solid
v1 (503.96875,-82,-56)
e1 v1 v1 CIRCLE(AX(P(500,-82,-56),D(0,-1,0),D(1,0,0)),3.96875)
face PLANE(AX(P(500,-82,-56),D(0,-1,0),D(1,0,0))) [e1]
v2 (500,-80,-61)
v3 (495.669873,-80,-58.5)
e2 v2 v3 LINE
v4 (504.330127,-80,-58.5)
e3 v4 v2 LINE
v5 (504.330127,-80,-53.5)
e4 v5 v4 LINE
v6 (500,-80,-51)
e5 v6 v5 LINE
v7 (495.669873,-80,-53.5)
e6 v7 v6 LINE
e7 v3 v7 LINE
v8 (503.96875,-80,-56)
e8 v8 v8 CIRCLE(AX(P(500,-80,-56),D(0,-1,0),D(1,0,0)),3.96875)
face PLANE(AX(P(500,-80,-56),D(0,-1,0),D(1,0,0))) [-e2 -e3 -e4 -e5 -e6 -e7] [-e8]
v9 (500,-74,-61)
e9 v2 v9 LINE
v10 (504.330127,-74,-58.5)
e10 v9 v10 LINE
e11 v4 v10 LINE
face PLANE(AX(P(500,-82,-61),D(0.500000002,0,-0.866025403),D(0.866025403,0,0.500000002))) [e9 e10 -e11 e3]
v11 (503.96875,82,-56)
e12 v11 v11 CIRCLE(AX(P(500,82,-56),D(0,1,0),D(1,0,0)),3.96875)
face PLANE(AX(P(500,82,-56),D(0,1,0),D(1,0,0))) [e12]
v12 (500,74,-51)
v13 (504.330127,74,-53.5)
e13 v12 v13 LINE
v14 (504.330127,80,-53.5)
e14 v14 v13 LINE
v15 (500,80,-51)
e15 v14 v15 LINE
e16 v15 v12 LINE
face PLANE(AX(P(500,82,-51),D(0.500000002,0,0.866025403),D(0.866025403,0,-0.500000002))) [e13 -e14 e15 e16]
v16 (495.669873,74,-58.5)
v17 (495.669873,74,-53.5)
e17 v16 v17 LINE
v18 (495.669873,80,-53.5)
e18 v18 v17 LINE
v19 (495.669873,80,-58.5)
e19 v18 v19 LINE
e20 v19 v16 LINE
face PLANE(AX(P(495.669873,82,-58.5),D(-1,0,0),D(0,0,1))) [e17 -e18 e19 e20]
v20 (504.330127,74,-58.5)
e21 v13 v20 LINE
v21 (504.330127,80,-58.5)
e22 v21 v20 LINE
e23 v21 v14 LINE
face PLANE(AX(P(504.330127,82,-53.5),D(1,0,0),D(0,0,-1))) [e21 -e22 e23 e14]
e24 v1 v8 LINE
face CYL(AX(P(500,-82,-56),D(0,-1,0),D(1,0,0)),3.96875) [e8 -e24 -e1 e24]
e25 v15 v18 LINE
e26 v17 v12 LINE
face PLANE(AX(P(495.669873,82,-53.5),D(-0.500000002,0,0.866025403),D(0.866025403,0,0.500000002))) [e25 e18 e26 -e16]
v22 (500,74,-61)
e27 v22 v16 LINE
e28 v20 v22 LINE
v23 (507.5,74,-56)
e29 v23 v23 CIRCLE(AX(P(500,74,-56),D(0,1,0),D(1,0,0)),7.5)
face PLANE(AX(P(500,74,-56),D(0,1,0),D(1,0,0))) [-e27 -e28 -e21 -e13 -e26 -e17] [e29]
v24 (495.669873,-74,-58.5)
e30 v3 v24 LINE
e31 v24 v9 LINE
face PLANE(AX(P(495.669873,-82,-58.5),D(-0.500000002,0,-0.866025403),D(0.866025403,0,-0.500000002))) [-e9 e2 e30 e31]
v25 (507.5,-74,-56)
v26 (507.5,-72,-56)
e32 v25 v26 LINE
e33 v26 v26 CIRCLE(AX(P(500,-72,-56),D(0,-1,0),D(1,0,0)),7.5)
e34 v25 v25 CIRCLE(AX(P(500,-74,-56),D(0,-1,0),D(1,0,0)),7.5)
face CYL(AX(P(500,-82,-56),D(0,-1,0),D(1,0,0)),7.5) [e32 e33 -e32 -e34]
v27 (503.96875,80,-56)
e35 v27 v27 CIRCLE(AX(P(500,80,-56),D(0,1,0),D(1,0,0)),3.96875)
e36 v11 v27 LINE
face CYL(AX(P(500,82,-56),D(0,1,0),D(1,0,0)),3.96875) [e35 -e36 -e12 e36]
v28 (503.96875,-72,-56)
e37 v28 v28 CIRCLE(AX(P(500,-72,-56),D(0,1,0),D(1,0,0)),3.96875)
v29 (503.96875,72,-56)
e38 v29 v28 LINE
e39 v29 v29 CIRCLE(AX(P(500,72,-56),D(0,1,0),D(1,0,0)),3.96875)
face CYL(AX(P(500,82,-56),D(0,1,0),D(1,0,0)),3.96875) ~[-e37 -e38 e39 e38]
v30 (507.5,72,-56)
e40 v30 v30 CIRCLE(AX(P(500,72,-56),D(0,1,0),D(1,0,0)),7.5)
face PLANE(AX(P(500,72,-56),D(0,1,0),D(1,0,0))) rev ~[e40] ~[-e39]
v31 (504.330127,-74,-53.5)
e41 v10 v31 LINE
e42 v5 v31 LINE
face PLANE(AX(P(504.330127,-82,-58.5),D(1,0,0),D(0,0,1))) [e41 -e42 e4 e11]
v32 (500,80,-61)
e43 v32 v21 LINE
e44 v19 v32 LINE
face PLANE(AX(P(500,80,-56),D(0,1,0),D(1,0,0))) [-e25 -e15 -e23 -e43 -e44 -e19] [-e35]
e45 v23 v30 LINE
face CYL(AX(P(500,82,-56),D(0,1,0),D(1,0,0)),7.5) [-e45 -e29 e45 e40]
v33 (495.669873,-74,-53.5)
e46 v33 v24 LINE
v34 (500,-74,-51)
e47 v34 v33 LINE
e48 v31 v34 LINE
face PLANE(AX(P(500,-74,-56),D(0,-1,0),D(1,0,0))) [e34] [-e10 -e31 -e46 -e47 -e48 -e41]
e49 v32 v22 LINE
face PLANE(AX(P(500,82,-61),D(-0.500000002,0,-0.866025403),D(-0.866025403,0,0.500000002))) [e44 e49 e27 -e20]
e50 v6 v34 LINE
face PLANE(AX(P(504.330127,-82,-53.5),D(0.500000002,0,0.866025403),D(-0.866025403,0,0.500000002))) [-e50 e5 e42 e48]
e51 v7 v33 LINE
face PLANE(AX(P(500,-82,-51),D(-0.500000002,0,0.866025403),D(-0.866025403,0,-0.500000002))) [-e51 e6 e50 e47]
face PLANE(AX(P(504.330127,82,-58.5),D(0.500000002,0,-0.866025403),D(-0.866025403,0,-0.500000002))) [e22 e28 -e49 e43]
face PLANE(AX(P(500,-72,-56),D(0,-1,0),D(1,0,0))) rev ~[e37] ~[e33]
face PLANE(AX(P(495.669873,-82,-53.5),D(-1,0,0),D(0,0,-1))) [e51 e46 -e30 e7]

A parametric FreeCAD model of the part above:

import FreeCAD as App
import Part
import Sketcher
Q = App.Units.Quantity

doc = App.newDocument("Part")
body = doc.addObject("PartDesign::Body", "Body")

# Sketch on XZ plane
sketch1 = body.newObject("Sketcher::SketchObject", "Sketch")
sketch1.AttachmentSupport = (doc.getObject("XZ_Plane"), [""])
sketch1.MapMode = "FlatFace"
sketch1.AttachmentOffset = App.Placement(App.Vector(0, 0, -82), App.Rotation())
sketch1.addGeometry(Part.Circle(App.Vector(500, 56, 0), App.Vector(0, 0, 1), 4), False)
sketch1.addConstraint([
    Sketcher.Constraint("DistanceX", -1, 1, 0, 3, 500.0),
    Sketcher.Constraint("DistanceY", -1, 1, 0, 3, 56.0),
    Sketcher.Constraint("Diameter", 0, 7.9375),
])
pad1 = body.newObject("PartDesign::Pad", "Pad")
pad1.Profile = sketch1
pad1.Length = 164

# Sketch on XZ plane
sketch2 = body.newObject("Sketcher::SketchObject", "Sketch001")
sketch2.AttachmentSupport = (doc.getObject("XZ_Plane"), [""])
sketch2.MapMode = "FlatFace"
sketch2.AttachmentOffset = App.Placement(App.Vector(0, 0, -82), App.Rotation())
sketch2.addGeometry(Part.Circle(App.Vector(500, 56, 0), App.Vector(0, 0, 1), 8), False)
sketch2.addConstraint([
    Sketcher.Constraint("Diameter", 0, 15.0),
    Sketcher.Constraint("DistanceX", -1, 1, 0, 3, 500.0),
    Sketcher.Constraint("DistanceY", -1, 1, 0, 3, 56.0),
])
pad2 = body.newObject("PartDesign::Pad", "Pad001")
pad2.Profile = sketch2
pad2.Length = 10

# Sketch on XZ plane
sketch3 = body.newObject("Sketcher::SketchObject", "Sketch002")
sketch3.AttachmentSupport = (doc.getObject("XZ_Plane"), [""])
sketch3.MapMode = "FlatFace"
sketch3.AttachmentOffset = App.Placement(App.Vector(0, 0, -82), App.Rotation())
sketch3.addGeometry([
    Part.Circle(App.Vector(500, 56, 0), App.Vector(0, 0, 1), 7.5),  # 0
    Part.LineSegment(App.Vector(495.7, 53.5, 0), App.Vector(500, 51, 0)),  # 1
    Part.LineSegment(App.Vector(500, 51, 0), App.Vector(504.3, 53.5, 0)),  # 2
    Part.LineSegment(App.Vector(504.3, 53.5, 0), App.Vector(504.3, 58.5, 0)),  # 3
    Part.LineSegment(App.Vector(504.3, 58.5, 0), App.Vector(500, 61, 0)),  # 4
    Part.LineSegment(App.Vector(500, 61, 0), App.Vector(495.7, 58.5, 0)),  # 5
    Part.LineSegment(App.Vector(495.7, 58.5, 0), App.Vector(495.7, 53.5, 0)),  # 6
], False)
sketch3.addConstraint([
    Sketcher.Constraint("Coincident", 1, 2, 2, 1),
    Sketcher.Constraint("Coincident", 2, 2, 3, 1),
    Sketcher.Constraint("Coincident", 3, 2, 4, 1),
    Sketcher.Constraint("Coincident", 4, 2, 5, 1),
    Sketcher.Constraint("Coincident", 5, 2, 6, 1),
    Sketcher.Constraint("Coincident", 6, 2, 1, 1),
    Sketcher.Constraint("Vertical", 3),
    Sketcher.Constraint("Vertical", 6),
    Sketcher.Constraint("Parallel", 1, 4),
    Sketcher.Constraint("Parallel", 2, 5),
    Sketcher.Constraint("Horizontal", 3, 2, 5, 2),
    Sketcher.Constraint("Horizontal", 2, 2, 6, 2),
    Sketcher.Constraint("Vertical", 0, 3, 1, 2),
    Sketcher.Constraint("Vertical", 1, 2, 4, 2),
    Sketcher.Constraint("Diameter", 0, 15.0),
    Sketcher.Constraint("DistanceY", 3, 1, 3, 2, 5.0),
    Sketcher.Constraint("Angle", 1, Q("-30 deg")),
    Sketcher.Constraint("Distance", 1, 5.0),
    Sketcher.Constraint("DistanceX", -1, 1, 0, 3, 500.0),
    Sketcher.Constraint("DistanceY", -1, 1, 0, 3, 56.0),
    Sketcher.Constraint("DistanceY", -1, 1, 1, 2, 51.0),
])
pocket1 = body.newObject("PartDesign::Pocket", "Pocket")
pocket1.Profile = sketch3
pocket1.Length = 8
pocket1.Reversed = True

# Sketch on XZ plane
sketch4 = body.newObject("Sketcher::SketchObject", "Sketch003")
sketch4.AttachmentSupport = (doc.getObject("XZ_Plane"), [""])
sketch4.MapMode = "FlatFace"
sketch4.AttachmentOffset = App.Placement(App.Vector(0, 0, -82), App.Rotation())
sketch4.addGeometry([
    Part.Circle(App.Vector(500, 56, 0), App.Vector(0, 0, 1), 7.5),
    Part.Circle(App.Vector(500, 56, 0), App.Vector(0, 0, 1), 4),
], False)
sketch4.addConstraint([
    Sketcher.Constraint("Coincident", 1, 3, 0, 3),
    Sketcher.Constraint("Diameter", 0, 15.0),
    Sketcher.Constraint("DistanceX", -1, 1, 0, 3, 500.0),
    Sketcher.Constraint("DistanceY", -1, 1, 0, 3, 56.0),
    Sketcher.Constraint("Diameter", 1, 7.9375),
])
pocket2 = body.newObject("PartDesign::Pocket", "Pocket001")
pocket2.Profile = sketch4
pocket2.Length = 2
pocket2.Reversed = True

# Sketch on XZ plane
sketch5 = body.newObject("Sketcher::SketchObject", "Sketch004")
sketch5.AttachmentSupport = (doc.getObject("XZ_Plane"), [""])
sketch5.MapMode = "FlatFace"
sketch5.AttachmentOffset = App.Placement(App.Vector(0, 0, 82), App.Rotation())
sketch5.addGeometry(Part.Circle(App.Vector(500, 56, 0), App.Vector(0, 0, 1), 8), False)
sketch5.addConstraint([
    Sketcher.Constraint("Diameter", 0, 15.0),
    Sketcher.Constraint("DistanceX", -1, 1, 0, 3, 500.0),
    Sketcher.Constraint("DistanceY", -1, 1, 0, 3, 56.0),
])
pad3 = body.newObject("PartDesign::Pad", "Pad002")
pad3.Profile = sketch5
pad3.Length = 10
pad3.Reversed = True

# Sketch on XZ plane
sketch6 = body.newObject("Sketcher::SketchObject", "Sketch005")
sketch6.AttachmentSupport = (doc.getObject("XZ_Plane"), [""])
sketch6.MapMode = "FlatFace"
sketch6.AttachmentOffset = App.Placement(App.Vector(0, 0, 82), App.Rotation())
sketch6.addGeometry([
    Part.Circle(App.Vector(500, 56, 0), App.Vector(0, 0, 1), 7.5),  # 0
    Part.LineSegment(App.Vector(495.7, 58.5, 0), App.Vector(500, 61, 0)),  # 1
    Part.LineSegment(App.Vector(500, 61, 0), App.Vector(504.3, 58.5, 0)),  # 2
    Part.LineSegment(App.Vector(504.3, 58.5, 0), App.Vector(504.3, 53.5, 0)),  # 3
    Part.LineSegment(App.Vector(504.3, 53.5, 0), App.Vector(500, 51, 0)),  # 4
    Part.LineSegment(App.Vector(500, 51, 0), App.Vector(495.7, 53.5, 0)),  # 5
    Part.LineSegment(App.Vector(495.7, 53.5, 0), App.Vector(495.7, 58.5, 0)),  # 6
], False)
sketch6.addConstraint([
    Sketcher.Constraint("Coincident", 1, 2, 2, 1),
    Sketcher.Constraint("Coincident", 2, 2, 3, 1),
    Sketcher.Constraint("Coincident", 3, 2, 4, 1),
    Sketcher.Constraint("Coincident", 4, 2, 5, 1),
    Sketcher.Constraint("Coincident", 5, 2, 6, 1),
    Sketcher.Constraint("Coincident", 6, 2, 1, 1),
    Sketcher.Constraint("Vertical", 3),
    Sketcher.Constraint("Vertical", 6),
    Sketcher.Constraint("Parallel", 1, 4),
    Sketcher.Constraint("Parallel", 2, 5),
    Sketcher.Constraint("Horizontal", 3, 2, 5, 2),
    Sketcher.Constraint("Horizontal", 2, 2, 6, 2),
    Sketcher.Constraint("Vertical", 0, 3, 1, 2),
    Sketcher.Constraint("Vertical", 1, 2, 4, 2),
    Sketcher.Constraint("Diameter", 0, 15.0),
    Sketcher.Constraint("DistanceY", 3, 2, 3, 1, 5.0),
    Sketcher.Constraint("Angle", 1, Q("30 deg")),
    Sketcher.Constraint("Distance", 1, 5.0),
    Sketcher.Constraint("DistanceX", -1, 1, 0, 3, 500.0),
    Sketcher.Constraint("DistanceY", -1, 1, 0, 3, 56.0),
    Sketcher.Constraint("DistanceY", -1, 1, 1, 2, 61.0),
])
pocket3 = body.newObject("PartDesign::Pocket", "Pocket002")
pocket3.Profile = sketch6
pocket3.Length = 8

# Sketch on XZ plane
sketch7 = body.newObject("Sketcher::SketchObject", "Sketch006")
sketch7.AttachmentSupport = (doc.getObject("XZ_Plane"), [""])
sketch7.MapMode = "FlatFace"
sketch7.AttachmentOffset = App.Placement(App.Vector(0, 0, 82), App.Rotation())
sketch7.addGeometry([
    Part.Circle(App.Vector(500, 56, 0), App.Vector(0, 0, 1), 7.5),
    Part.Circle(App.Vector(500, 56, 0), App.Vector(0, 0, 1), 4),
], False)
sketch7.addConstraint([
    Sketcher.Constraint("Coincident", 1, 3, 0, 3),
    Sketcher.Constraint("Diameter", 0, 15.0),
    Sketcher.Constraint("DistanceX", -1, 1, 0, 3, 500.0),
    Sketcher.Constraint("DistanceY", -1, 1, 0, 3, 56.0),
    Sketcher.Constraint("Diameter", 1, 7.9375),
])
pocket4 = body.newObject("PartDesign::Pocket", "Pocket003")
pocket4.Profile = sketch7
pocket4.Length = 2
body2 = doc.addObject("PartDesign::Body", "Body001")
doc.recompute()

body.Placement = App.Placement(App.Vector(0, 0, -112), App.Rotation(App.Vector(0, 0, 1), 0))
boolean = body2.newObject("PartDesign::Boolean", "Boolean")
boolean.Type = "Fuse"
boolean.addObjects([body])

doc.recompute()
